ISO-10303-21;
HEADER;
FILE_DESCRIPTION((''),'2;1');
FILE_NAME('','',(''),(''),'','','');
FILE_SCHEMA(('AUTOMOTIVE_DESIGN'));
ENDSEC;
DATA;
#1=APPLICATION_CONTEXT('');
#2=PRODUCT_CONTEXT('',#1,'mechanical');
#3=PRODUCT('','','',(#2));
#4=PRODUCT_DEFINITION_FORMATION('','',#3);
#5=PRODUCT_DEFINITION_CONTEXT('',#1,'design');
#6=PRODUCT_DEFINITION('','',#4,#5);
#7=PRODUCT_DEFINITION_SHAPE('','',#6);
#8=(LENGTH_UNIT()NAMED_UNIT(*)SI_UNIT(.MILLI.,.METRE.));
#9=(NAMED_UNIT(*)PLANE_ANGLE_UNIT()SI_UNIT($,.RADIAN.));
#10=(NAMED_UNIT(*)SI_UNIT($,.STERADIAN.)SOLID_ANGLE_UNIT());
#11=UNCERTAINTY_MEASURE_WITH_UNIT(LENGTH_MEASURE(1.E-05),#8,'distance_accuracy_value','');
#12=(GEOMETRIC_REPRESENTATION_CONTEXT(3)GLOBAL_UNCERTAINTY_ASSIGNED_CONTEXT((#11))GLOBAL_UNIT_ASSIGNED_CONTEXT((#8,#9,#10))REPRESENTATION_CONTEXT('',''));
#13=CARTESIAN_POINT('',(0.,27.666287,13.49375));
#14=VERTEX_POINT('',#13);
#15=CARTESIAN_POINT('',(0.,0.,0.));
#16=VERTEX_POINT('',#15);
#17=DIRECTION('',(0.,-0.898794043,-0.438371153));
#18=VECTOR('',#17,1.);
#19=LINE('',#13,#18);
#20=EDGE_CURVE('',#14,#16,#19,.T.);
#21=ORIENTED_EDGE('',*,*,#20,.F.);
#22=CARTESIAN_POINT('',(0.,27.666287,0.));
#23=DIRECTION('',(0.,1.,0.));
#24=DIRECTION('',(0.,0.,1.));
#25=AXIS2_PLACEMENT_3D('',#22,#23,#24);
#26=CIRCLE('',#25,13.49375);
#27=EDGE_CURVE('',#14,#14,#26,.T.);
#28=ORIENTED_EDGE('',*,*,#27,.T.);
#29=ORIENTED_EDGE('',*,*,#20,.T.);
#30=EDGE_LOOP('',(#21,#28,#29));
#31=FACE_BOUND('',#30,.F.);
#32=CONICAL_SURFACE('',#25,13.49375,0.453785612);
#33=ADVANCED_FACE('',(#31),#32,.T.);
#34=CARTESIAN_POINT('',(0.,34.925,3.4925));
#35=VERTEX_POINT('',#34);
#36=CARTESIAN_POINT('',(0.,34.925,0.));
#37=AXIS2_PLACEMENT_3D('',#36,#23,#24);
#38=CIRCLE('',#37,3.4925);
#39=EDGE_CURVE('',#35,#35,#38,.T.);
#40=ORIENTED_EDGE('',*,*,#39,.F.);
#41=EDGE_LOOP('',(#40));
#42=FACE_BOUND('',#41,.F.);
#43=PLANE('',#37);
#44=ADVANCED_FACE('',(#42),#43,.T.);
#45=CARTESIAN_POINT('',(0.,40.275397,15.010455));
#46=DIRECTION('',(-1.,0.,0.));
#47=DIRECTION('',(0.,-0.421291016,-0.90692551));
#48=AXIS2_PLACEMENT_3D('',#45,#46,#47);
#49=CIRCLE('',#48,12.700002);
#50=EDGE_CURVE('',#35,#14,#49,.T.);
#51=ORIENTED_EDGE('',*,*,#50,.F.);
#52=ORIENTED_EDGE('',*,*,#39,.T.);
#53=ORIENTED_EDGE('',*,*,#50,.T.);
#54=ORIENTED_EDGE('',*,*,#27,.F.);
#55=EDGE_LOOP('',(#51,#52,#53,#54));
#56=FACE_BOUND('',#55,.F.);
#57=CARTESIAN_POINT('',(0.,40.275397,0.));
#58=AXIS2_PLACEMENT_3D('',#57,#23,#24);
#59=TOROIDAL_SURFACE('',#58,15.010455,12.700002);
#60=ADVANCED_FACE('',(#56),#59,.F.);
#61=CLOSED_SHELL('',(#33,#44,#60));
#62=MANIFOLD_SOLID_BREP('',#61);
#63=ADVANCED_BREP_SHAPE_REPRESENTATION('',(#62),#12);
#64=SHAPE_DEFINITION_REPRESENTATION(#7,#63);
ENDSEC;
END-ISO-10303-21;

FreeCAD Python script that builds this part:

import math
import FreeCAD as App
import Part
import Sketcher

V = App.Vector
Q = App.Units.Quantity

doc = App.newDocument("Part")
params = doc.addObject("Spreadsheet::Sheet", "Params")
for row, (alias, value) in enumerate([
    ("sketch1_radius", "0.5000001 in"),
    ("sketch1_width", "1.375 in"),
    ("revolution_angle", "360 deg"),
], start=1):
    params.set(f"A{row}", alias)
    params.set(f"B{row}", "=" + value)
    params.setAlias(f"B{row}", alias)

body = doc.addObject("PartDesign::Body", "Body")

# Sketch on YZ plane
sketch1 = body.newObject("Sketcher::SketchObject", "Sketch")
sketch1.AttachmentSupport = (doc.getObject("YZ_Plane"), [""])
sketch1.MapMode = "FlatFace"
sketch1.addGeometry([
    Part.LineSegment(V(27.7, 13.5, 0), V(0, 0, 0)),
    Part.LineSegment(V(0, 0, 0), V(34.9, 0, 0)),
    Part.LineSegment(V(34.9, 0, 0), V(34.9, 3.5, 0)),
    Part.ArcOfCircle(Part.Circle(V(40.3, 15, 0), V(0, 0, 1), 12.7), math.radians(-173), math.radians(-115)),
], False)
sketch1.addConstraint([
    Sketcher.Constraint("Coincident", 0, 2, 1, 1),
    Sketcher.Constraint("Coincident", 1, 2, 2, 1),
    Sketcher.Constraint("Coincident", 2, 2, 3, 2),
    Sketcher.Constraint("Coincident", 3, 1, 0, 1),
    Sketcher.Constraint("Horizontal", 1),
    Sketcher.Constraint("Vertical", 2),
    Sketcher.Constraint("Coincident", 0, 2, -1, 1),
    Sketcher.Constraint("Radius", 3, Q("0.5000001 in")),
    Sketcher.Constraint("Angle", 0, Q("-154 deg")),
    Sketcher.Constraint("DistanceX", 1, 1, 1, 2, Q("1.375 in")),
    Sketcher.Constraint("DistanceY", 2, 1, 2, 2, Q("0.1375 in")),
    Sketcher.Constraint("DistanceY", -1, 1, 3, 1, Q("0.53125 in")),
])
sketch1.setExpression("Constraints[7]", "Params.sketch1_radius")
sketch1.setExpression("Constraints[9]", "Params.sketch1_width")
revolution = body.newObject("PartDesign::Revolution", "Revolution")
revolution.Profile = sketch1
revolution.ReferenceAxis = (sketch1, ["H_Axis"])
revolution.setExpression("Angle", "Params.revolution_angle")

doc.recompute()
